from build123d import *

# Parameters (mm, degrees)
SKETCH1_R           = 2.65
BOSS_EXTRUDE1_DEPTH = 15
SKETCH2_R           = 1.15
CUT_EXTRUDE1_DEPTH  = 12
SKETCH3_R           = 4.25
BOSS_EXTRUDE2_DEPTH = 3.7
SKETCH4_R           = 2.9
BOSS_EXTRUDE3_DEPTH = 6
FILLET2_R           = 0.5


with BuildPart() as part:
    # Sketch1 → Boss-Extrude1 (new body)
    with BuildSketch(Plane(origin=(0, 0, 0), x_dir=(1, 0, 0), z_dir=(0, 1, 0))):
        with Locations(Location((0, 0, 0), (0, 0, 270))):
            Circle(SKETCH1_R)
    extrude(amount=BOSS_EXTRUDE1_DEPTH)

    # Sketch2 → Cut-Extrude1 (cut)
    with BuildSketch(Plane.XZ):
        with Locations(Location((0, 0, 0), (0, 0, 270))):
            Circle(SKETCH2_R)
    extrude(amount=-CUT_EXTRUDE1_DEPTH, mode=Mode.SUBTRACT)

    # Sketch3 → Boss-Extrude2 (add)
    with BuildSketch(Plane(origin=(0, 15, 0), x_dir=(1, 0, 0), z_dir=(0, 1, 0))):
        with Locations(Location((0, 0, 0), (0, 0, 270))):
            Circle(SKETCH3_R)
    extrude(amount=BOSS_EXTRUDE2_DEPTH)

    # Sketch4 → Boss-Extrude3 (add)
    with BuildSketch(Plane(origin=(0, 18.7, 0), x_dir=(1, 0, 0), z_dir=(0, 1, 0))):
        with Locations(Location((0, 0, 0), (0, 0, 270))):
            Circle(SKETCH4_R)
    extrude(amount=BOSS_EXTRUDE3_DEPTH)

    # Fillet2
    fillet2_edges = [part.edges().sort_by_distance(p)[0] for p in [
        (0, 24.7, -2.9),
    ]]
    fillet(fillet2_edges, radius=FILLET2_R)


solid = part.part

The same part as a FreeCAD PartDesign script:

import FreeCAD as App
import Part
import Sketcher
from FreeCAD import Vector
Q = App.Units.Quantity


def edges_at(feature, points):
    """Names of the edges that pass closest to the given points."""
    edges = feature.Shape.Edges
    near = lambda p: min(range(len(edges)), key=lambda i: edges[i].distToShape(Part.Vertex(*p))[0])
    return sorted({f"Edge{near(p) + 1}" for p in points})

doc = App.newDocument("Part")
body = doc.addObject("PartDesign::Body", "Body")

# Sketch on XZ plane
sketch1 = body.newObject("Sketcher::SketchObject", "Sketch")
sketch1.AttachmentSupport = (doc.getObject("XZ_Plane"), [""])
sketch1.MapMode = "FlatFace"
sketch1.addGeometry(Part.Circle(Vector(0, 0, 0), Vector(0, 0, 1), 2.6), False)
sketch1.addConstraint([
    Sketcher.Constraint("Coincident", 0, 3, -1, 1),
    Sketcher.Constraint("Diameter", 0, Q("5.3 mm")),
])
pad1 = body.newObject("PartDesign::Pad", "Pad")
pad1.Profile = sketch1
pad1.Length = 15
pad1.Reversed = True

# Sketch on XZ plane
sketch2 = body.newObject("Sketcher::SketchObject", "Sketch001")
sketch2.AttachmentSupport = (doc.getObject("XZ_Plane"), [""])
sketch2.MapMode = "FlatFace"
sketch2.addGeometry(Part.Circle(Vector(0, 0, 0), Vector(0, 0, 1), 1.1), False)
sketch2.addConstraint([
    Sketcher.Constraint("Coincident", 0, 3, -1, 1),
    Sketcher.Constraint("Diameter", 0, Q("2.3 mm")),
])
pocket1 = body.newObject("PartDesign::Pocket", "Pocket")
pocket1.Profile = sketch2
pocket1.Length = 12

# Sketch on XZ plane
sketch3 = body.newObject("Sketcher::SketchObject", "Sketch002")
sketch3.AttachmentSupport = (doc.getObject("XZ_Plane"), [""])
sketch3.MapMode = "FlatFace"
sketch3.AttachmentOffset = App.Placement(Vector(0, 0, -15), App.Rotation())
sketch3.addGeometry(Part.Circle(Vector(0, 0, 0), Vector(0, 0, 1), 4.2), False)
sketch3.addConstraint([
    Sketcher.Constraint("Coincident", 0, 3, -1, 1),
    Sketcher.Constraint("Diameter", 0, Q("8.5 mm")),
])
pad2 = body.newObject("PartDesign::Pad", "Pad001")
pad2.Profile = sketch3
pad2.Length = 3.7
pad2.Reversed = True

# Sketch on XZ plane
sketch4 = body.newObject("Sketcher::SketchObject", "Sketch003")
sketch4.AttachmentSupport = (doc.getObject("XZ_Plane"), [""])
sketch4.MapMode = "FlatFace"
sketch4.AttachmentOffset = App.Placement(Vector(0, 0, -18.7), App.Rotation())
sketch4.addGeometry(Part.Circle(Vector(0, 0, 0), Vector(0, 0, 1), 2.9), False)
sketch4.addConstraint([
    Sketcher.Constraint("Coincident", 0, 3, -1, 1),
    Sketcher.Constraint("Diameter", 0, Q("5.8 mm")),
])
pad3 = body.newObject("PartDesign::Pad", "Pad002")
pad3.Profile = sketch4
pad3.Length = 6
pad3.Reversed = True
doc.recompute()

fillet = body.newObject("PartDesign::Fillet", "Fillet")
fillet.Base = (pad3, edges_at(pad3, [(0, 24.7, -2.9)]))
fillet.Radius = 0.5

doc.recompute()
